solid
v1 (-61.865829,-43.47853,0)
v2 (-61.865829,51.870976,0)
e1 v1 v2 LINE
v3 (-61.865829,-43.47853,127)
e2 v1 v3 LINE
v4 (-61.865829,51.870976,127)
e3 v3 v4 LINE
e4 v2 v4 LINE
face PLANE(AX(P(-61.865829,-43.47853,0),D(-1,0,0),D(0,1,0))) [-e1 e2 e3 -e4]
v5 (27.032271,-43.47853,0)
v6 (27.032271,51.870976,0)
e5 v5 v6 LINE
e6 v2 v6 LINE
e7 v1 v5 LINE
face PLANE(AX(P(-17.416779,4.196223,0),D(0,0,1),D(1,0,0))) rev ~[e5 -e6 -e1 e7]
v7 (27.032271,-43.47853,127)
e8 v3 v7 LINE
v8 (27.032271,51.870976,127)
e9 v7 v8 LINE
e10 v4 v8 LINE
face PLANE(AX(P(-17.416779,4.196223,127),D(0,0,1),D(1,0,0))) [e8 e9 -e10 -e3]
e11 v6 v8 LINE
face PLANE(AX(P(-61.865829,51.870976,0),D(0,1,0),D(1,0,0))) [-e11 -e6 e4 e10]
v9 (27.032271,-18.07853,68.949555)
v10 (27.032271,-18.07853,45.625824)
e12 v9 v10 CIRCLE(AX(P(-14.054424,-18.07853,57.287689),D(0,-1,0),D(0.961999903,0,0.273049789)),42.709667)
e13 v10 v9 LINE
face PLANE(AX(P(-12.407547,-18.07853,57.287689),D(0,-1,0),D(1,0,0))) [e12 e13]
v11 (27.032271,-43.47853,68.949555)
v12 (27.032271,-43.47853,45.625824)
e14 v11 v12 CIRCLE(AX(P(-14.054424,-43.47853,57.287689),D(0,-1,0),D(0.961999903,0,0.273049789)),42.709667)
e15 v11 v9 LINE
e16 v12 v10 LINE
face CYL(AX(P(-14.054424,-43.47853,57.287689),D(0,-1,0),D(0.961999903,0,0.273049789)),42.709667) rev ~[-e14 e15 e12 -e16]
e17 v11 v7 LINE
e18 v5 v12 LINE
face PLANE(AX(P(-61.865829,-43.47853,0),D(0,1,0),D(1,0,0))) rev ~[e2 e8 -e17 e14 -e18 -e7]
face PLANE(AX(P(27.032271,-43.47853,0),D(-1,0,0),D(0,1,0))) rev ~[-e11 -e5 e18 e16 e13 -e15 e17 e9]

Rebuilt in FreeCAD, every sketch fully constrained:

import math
import FreeCAD as App
import Part
import Sketcher
from FreeCAD import Vector
Q = App.Units.Quantity

doc = App.newDocument("Part")
body = doc.addObject("PartDesign::Body", "Body")

# Sketch on XY plane
sketch1 = doc.addObject("Sketcher::SketchObject", "Sketch")
body.addObject(sketch1)
sketch1.AttachmentSupport = (doc.XY_Plane, [""])
sketch1.MapMode = "FlatFace"
sketch1.addGeometry([
    Part.LineSegment(Vector(-61.865829, 51.870976, 0), Vector(-61.865829, -43.47853, 0)),
    Part.LineSegment(Vector(-61.865829, -43.47853, 0), Vector(27.032271, -43.47853, 0)),
    Part.LineSegment(Vector(27.032271, -43.47853, 0), Vector(27.032271, 51.870976, 0)),
    Part.LineSegment(Vector(27.032271, 51.870976, 0), Vector(-61.865829, 51.870976, 0)),
], False)
sketch1.addConstraint([
    Sketcher.Constraint("Coincident", 0, 2, 1, 1),
    Sketcher.Constraint("Coincident", 1, 2, 2, 1),
    Sketcher.Constraint("Coincident", 2, 2, 3, 1),
    Sketcher.Constraint("Coincident", 3, 2, 0, 1),
    Sketcher.Constraint("Vertical", 0),
    Sketcher.Constraint("Horizontal", 1),
    Sketcher.Constraint("Vertical", 2),
    Sketcher.Constraint("Horizontal", 3),
    Sketcher.Constraint("DistanceX", 1, 1, 1, 2, 88.8981),
    Sketcher.Constraint("DistanceY", 0, 2, 0, 1, 95.349506),
    Sketcher.Constraint("DistanceX", 0, 2, -1, 1, 61.865829),
    Sketcher.Constraint("DistanceY", 0, 2, -1, 1, 43.47853),
])
pad1 = doc.addObject("PartDesign::Pad", "Pad")
body.addObject(pad1)
pad1.Profile = sketch1
pad1.Length = Q("5 in")

# Sketch on XZ plane
sketch2 = doc.addObject("Sketcher::SketchObject", "Sketch001")
body.addObject(sketch2)
sketch2.AttachmentSupport = (doc.XZ_Plane, [""])
sketch2.MapMode = "FlatFace"
sketch2.AttachmentOffset = App.Placement(Vector(0, 0, 43.47853), App.Rotation())
sketch2.addGeometry([
    Part.ArcOfCircle(Part.Circle(Vector(-14.054424, 57.287689, 0), Vector(0, 0, 1), 42.709667), math.radians(15.845828), math.radians(344.154172)),
    Part.ArcOfCircle(Part.Circle(Vector(-14.054421, 57.287691, 0), Vector(0, 0, 1), 42.709664), math.radians(-15.845831), math.radians(-0.000003)),
    Part.ArcOfCircle(Part.Circle(Vector(-14.054435, 57.287686, 0), Vector(0, 0, 1), 42.709678), math.radians(0.000004), math.radians(15.845828)),
], False)
sketch2.addConstraint([
    Sketcher.Constraint("Coincident", 0, 2, 1, 1),
    Sketcher.Constraint("Coincident", 1, 2, 2, 1),
    Sketcher.Constraint("Coincident", 2, 2, 0, 1),
    Sketcher.Constraint("Coincident", 1, 3, 0, 3),
    Sketcher.Constraint("Radius", 2, 42.709678),
    Sketcher.Constraint("Radius", 0, 42.709667),
    Sketcher.Constraint("DistanceY", -1, 1, 0, 3, 57.287689),
    Sketcher.Constraint("DistanceX", 1, 3, -1, 1, 14.054421),
    Sketcher.Constraint("DistanceX", -1, 1, 0, 2, 27.032271),
    Sketcher.Constraint("DistanceY", -1, 1, 1, 2, 57.287689),
    Sketcher.Constraint("DistanceX", -1, 1, 2, 2, 27.032271),
])
pocket1 = doc.addObject("PartDesign::Pocket", "Pocket")
body.addObject(pocket1)
pocket1.Profile = sketch2
pocket1.Length = Q("1 in")

doc.recompute()
